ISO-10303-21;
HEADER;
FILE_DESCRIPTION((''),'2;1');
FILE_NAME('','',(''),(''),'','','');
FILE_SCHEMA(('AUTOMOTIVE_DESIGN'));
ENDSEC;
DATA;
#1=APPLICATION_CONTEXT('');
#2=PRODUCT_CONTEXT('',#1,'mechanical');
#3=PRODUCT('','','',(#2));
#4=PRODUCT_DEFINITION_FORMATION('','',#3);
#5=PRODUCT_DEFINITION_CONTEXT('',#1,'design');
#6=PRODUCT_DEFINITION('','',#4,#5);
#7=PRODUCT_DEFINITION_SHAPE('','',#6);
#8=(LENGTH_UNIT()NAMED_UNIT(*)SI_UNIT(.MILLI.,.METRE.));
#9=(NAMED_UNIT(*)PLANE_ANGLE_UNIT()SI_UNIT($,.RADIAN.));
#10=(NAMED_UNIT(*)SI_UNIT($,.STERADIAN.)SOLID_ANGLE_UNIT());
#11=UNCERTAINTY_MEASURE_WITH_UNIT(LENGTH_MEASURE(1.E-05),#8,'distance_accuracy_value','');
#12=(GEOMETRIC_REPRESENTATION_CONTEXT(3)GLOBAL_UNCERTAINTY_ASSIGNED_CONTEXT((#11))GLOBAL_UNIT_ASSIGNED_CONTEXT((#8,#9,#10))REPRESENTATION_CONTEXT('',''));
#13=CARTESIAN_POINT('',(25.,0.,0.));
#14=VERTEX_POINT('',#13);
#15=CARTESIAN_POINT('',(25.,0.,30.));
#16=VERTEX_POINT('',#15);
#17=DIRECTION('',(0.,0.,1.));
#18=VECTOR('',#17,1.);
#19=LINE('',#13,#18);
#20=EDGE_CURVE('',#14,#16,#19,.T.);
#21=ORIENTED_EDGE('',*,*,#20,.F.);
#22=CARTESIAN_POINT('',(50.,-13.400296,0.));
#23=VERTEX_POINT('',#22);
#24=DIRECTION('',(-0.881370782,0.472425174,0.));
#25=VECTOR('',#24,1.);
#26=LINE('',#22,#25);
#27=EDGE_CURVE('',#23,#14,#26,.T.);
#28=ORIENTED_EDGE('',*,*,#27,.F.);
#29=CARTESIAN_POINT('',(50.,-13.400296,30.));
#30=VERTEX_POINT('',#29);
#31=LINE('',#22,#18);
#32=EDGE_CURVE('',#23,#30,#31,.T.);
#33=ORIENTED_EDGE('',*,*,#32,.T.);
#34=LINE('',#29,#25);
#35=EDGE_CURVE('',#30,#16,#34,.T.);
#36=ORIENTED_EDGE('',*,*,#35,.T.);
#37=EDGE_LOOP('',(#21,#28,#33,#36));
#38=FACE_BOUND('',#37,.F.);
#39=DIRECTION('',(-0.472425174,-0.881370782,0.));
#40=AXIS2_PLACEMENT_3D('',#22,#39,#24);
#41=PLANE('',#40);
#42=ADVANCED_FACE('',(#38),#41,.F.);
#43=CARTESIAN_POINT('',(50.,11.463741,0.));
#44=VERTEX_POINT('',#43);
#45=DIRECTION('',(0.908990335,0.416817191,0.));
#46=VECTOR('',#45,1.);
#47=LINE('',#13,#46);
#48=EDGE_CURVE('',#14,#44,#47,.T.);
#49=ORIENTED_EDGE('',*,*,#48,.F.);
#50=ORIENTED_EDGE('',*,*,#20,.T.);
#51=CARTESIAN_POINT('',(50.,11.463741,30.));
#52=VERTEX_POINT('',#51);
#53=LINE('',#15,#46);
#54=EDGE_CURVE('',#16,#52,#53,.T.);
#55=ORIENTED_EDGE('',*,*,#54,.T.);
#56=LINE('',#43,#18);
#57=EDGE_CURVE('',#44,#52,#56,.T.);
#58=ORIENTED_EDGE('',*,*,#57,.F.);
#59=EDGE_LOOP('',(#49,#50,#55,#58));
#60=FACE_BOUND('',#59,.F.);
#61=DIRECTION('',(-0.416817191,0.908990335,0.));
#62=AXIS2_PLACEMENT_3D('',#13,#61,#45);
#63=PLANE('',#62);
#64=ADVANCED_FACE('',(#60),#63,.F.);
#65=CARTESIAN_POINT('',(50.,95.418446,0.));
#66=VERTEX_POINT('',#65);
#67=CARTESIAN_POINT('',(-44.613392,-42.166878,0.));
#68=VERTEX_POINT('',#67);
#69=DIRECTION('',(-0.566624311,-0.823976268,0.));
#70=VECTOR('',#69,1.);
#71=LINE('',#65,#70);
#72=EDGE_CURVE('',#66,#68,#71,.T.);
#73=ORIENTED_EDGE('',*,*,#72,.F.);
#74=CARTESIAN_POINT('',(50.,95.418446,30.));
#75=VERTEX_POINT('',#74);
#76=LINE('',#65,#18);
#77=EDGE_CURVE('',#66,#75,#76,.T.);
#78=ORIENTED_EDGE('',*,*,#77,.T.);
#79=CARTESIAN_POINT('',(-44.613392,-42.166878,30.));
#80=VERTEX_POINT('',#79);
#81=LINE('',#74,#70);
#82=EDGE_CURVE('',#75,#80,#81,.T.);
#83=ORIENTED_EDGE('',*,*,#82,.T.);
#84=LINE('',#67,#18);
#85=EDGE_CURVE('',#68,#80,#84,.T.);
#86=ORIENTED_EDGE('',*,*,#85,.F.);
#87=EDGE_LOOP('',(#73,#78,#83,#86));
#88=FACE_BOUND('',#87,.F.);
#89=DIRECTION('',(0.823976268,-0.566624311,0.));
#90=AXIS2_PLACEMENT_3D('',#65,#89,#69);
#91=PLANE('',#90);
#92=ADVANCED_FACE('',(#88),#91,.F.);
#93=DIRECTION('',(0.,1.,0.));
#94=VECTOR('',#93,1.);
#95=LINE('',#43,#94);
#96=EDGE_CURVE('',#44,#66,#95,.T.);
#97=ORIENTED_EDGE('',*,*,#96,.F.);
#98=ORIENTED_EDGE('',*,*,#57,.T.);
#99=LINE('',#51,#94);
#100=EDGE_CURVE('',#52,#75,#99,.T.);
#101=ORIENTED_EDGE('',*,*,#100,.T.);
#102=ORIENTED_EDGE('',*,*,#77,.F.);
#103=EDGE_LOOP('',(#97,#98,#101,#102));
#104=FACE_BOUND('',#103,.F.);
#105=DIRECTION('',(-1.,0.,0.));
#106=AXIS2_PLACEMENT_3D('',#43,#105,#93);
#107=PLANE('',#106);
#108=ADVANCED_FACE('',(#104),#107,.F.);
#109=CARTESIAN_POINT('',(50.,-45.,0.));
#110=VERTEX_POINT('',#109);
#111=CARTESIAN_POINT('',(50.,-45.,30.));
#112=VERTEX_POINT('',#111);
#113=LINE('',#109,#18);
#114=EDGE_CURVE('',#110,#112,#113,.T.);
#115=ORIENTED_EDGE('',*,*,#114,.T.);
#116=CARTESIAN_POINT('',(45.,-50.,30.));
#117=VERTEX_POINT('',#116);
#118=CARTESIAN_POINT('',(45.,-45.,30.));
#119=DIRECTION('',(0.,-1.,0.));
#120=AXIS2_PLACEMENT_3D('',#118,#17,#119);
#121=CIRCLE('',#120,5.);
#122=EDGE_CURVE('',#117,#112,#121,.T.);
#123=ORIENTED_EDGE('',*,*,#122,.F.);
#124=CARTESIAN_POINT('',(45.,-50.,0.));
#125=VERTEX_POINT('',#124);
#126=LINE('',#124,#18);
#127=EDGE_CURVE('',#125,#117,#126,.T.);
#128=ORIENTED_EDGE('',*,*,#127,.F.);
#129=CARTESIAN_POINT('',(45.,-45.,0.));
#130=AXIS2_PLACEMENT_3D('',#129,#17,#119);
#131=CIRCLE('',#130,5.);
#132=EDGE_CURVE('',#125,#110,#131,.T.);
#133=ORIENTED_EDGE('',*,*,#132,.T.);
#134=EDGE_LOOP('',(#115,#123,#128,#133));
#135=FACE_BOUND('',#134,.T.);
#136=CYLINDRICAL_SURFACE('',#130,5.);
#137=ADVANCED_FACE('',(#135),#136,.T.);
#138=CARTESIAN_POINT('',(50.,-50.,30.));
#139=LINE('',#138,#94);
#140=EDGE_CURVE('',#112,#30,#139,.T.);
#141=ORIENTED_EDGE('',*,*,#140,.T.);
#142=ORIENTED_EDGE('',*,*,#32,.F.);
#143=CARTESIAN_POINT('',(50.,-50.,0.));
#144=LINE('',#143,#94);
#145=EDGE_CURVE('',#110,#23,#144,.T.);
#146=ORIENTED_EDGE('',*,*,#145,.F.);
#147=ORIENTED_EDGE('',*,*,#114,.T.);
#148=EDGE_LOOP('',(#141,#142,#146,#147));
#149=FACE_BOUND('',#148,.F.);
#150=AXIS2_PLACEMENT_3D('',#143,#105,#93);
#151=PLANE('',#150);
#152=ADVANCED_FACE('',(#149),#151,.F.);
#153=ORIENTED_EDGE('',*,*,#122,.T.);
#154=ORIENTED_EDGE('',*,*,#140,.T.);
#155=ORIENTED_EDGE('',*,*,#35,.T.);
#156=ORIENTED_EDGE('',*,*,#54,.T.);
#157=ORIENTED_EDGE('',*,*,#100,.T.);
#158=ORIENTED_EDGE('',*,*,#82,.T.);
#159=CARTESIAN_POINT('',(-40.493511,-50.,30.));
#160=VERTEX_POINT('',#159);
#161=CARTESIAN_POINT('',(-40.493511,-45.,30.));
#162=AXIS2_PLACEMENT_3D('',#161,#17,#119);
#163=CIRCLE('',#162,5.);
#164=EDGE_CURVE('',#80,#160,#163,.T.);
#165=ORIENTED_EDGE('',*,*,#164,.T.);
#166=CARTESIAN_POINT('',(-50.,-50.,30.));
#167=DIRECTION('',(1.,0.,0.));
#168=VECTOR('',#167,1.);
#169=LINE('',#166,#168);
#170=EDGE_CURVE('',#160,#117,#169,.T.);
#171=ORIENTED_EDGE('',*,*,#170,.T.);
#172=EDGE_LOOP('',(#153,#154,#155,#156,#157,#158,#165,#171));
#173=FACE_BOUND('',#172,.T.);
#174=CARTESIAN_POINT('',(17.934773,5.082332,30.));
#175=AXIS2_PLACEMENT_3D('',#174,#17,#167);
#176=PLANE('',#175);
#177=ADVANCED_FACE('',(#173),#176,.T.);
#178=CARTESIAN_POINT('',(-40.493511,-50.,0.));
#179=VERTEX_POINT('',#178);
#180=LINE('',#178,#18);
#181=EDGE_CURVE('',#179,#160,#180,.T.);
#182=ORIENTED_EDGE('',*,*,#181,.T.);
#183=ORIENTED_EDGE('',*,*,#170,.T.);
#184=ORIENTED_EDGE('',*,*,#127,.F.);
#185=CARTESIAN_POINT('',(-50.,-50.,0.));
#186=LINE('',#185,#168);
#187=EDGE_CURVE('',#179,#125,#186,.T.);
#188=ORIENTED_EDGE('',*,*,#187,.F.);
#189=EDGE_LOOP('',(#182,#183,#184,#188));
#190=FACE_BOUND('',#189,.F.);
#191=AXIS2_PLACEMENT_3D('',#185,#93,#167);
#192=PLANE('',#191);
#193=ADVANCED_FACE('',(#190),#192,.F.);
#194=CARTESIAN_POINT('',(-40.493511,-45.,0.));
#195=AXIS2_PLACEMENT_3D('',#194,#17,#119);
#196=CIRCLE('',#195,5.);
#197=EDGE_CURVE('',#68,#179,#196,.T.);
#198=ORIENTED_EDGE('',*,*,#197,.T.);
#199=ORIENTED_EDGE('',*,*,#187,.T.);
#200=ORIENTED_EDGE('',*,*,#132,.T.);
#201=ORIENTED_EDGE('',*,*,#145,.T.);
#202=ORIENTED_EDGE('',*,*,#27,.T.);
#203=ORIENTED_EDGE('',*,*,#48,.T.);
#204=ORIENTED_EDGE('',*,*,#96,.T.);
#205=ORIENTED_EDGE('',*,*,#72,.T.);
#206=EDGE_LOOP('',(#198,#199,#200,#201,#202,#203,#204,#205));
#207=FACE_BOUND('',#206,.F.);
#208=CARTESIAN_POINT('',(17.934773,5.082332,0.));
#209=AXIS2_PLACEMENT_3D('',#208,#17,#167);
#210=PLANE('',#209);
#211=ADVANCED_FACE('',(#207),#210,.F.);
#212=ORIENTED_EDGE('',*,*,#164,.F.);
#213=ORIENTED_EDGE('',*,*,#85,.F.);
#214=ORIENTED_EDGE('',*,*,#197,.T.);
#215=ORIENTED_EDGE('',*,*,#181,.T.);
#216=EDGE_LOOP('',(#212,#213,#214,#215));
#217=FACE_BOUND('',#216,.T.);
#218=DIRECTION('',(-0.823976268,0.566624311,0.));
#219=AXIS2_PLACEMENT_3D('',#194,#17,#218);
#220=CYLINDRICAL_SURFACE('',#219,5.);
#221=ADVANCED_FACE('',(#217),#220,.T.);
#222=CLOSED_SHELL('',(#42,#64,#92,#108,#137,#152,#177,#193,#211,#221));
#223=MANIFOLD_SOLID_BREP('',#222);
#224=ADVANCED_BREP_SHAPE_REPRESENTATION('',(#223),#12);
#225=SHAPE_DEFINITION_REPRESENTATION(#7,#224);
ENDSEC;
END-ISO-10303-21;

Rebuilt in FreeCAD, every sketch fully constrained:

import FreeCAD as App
import Part
import Sketcher

V = App.Vector
Q = App.Units.Quantity


def edges_at(feature, points):
    """Names of the edges that pass closest to the given points."""
    edges = feature.Shape.Edges
    near = lambda p: min(range(len(edges)), key=lambda i: edges[i].distToShape(Part.Vertex(*p))[0])
    return sorted({f"Edge{near(p) + 1}" for p in points})


def add_polygon(sketch, points):
    """Adds a closed chain of lines whose ends are joined by coincident constraints."""
    first, n = sketch.GeometryCount, len(points)
    for a, b in zip(points, points[1:] + points[:1]):
        sketch.addGeometry(Part.LineSegment(App.Vector(*a, 0), App.Vector(*b, 0)), False)
    for i in range(n):
        sketch.addConstraint(Sketcher.Constraint("Coincident", first + i, 2, first + (i + 1) % n, 1))

doc = App.newDocument("Part")
params = doc.addObject("Spreadsheet::Sheet", "Params")
for row, (alias, value) in enumerate([
    ("sketch1_width", "100 mm"),
    ("pad1_length", "30 mm"),
    ("fillet_radius", "5 mm"),
], start=1):
    params.set(f"A{row}", alias)
    params.set(f"B{row}", "=" + value)
    params.setAlias(f"B{row}", alias)

body = doc.addObject("PartDesign::Body", "Body")

# Sketch on XY plane
sketch1 = doc.addObject("Sketcher::SketchObject", "Sketch")
body.addObject(sketch1)
sketch1.AttachmentSupport = (doc.XY_Plane, [""])
sketch1.MapMode = "FlatFace"
add_polygon(sketch1, [(50, 95), (-50, -50), (50, -50), (50, -13), (25, 0), (50, 11)])  # lines 0-5
sketch1.addConstraint([
    Sketcher.Constraint("Horizontal", 1),
    Sketcher.Constraint("Vertical", 2),
    Sketcher.Constraint("Vertical", 5),
    Sketcher.Constraint("PointOnObject", 3, 2, -1),
    Sketcher.Constraint("Vertical", 2, 2, 4, 2),
    Sketcher.Constraint("DistanceX", 1, 1, 1, 2, Q("100 mm")),
    Sketcher.Constraint("DistanceX", 0, 2, -1, 1, Q("50 mm")),
    Sketcher.Constraint("DistanceY", 0, 2, -1, 1, Q("50 mm")),
    Sketcher.Constraint("DistanceX", -1, 1, 3, 2, Q("25 mm")),
    Sketcher.Constraint("Distance", 0, Q("176.48378 mm")),
    Sketcher.Constraint("DistanceY", 2, 1, 2, 2, Q("36.599704 mm")),
    Sketcher.Constraint("DistanceY", 5, 1, 5, 2, Q("83.954705 mm")),
])
sketch1.setExpression("Constraints[11]", "Params.sketch1_width")
pad1 = doc.addObject("PartDesign::Pad", "Pad")
body.addObject(pad1)
pad1.Profile = sketch1
pad1.setExpression("Length", "Params.pad1_length")
doc.recompute()

fillet = doc.addObject("PartDesign::Fillet", "Fillet")
body.addObject(fillet)
fillet.Base = (pad1, edges_at(pad1, [(50, -50, 15), (-50, -50, 15)]))
fillet.setExpression("Radius", "Params.fillet_radius")

doc.recompute()
